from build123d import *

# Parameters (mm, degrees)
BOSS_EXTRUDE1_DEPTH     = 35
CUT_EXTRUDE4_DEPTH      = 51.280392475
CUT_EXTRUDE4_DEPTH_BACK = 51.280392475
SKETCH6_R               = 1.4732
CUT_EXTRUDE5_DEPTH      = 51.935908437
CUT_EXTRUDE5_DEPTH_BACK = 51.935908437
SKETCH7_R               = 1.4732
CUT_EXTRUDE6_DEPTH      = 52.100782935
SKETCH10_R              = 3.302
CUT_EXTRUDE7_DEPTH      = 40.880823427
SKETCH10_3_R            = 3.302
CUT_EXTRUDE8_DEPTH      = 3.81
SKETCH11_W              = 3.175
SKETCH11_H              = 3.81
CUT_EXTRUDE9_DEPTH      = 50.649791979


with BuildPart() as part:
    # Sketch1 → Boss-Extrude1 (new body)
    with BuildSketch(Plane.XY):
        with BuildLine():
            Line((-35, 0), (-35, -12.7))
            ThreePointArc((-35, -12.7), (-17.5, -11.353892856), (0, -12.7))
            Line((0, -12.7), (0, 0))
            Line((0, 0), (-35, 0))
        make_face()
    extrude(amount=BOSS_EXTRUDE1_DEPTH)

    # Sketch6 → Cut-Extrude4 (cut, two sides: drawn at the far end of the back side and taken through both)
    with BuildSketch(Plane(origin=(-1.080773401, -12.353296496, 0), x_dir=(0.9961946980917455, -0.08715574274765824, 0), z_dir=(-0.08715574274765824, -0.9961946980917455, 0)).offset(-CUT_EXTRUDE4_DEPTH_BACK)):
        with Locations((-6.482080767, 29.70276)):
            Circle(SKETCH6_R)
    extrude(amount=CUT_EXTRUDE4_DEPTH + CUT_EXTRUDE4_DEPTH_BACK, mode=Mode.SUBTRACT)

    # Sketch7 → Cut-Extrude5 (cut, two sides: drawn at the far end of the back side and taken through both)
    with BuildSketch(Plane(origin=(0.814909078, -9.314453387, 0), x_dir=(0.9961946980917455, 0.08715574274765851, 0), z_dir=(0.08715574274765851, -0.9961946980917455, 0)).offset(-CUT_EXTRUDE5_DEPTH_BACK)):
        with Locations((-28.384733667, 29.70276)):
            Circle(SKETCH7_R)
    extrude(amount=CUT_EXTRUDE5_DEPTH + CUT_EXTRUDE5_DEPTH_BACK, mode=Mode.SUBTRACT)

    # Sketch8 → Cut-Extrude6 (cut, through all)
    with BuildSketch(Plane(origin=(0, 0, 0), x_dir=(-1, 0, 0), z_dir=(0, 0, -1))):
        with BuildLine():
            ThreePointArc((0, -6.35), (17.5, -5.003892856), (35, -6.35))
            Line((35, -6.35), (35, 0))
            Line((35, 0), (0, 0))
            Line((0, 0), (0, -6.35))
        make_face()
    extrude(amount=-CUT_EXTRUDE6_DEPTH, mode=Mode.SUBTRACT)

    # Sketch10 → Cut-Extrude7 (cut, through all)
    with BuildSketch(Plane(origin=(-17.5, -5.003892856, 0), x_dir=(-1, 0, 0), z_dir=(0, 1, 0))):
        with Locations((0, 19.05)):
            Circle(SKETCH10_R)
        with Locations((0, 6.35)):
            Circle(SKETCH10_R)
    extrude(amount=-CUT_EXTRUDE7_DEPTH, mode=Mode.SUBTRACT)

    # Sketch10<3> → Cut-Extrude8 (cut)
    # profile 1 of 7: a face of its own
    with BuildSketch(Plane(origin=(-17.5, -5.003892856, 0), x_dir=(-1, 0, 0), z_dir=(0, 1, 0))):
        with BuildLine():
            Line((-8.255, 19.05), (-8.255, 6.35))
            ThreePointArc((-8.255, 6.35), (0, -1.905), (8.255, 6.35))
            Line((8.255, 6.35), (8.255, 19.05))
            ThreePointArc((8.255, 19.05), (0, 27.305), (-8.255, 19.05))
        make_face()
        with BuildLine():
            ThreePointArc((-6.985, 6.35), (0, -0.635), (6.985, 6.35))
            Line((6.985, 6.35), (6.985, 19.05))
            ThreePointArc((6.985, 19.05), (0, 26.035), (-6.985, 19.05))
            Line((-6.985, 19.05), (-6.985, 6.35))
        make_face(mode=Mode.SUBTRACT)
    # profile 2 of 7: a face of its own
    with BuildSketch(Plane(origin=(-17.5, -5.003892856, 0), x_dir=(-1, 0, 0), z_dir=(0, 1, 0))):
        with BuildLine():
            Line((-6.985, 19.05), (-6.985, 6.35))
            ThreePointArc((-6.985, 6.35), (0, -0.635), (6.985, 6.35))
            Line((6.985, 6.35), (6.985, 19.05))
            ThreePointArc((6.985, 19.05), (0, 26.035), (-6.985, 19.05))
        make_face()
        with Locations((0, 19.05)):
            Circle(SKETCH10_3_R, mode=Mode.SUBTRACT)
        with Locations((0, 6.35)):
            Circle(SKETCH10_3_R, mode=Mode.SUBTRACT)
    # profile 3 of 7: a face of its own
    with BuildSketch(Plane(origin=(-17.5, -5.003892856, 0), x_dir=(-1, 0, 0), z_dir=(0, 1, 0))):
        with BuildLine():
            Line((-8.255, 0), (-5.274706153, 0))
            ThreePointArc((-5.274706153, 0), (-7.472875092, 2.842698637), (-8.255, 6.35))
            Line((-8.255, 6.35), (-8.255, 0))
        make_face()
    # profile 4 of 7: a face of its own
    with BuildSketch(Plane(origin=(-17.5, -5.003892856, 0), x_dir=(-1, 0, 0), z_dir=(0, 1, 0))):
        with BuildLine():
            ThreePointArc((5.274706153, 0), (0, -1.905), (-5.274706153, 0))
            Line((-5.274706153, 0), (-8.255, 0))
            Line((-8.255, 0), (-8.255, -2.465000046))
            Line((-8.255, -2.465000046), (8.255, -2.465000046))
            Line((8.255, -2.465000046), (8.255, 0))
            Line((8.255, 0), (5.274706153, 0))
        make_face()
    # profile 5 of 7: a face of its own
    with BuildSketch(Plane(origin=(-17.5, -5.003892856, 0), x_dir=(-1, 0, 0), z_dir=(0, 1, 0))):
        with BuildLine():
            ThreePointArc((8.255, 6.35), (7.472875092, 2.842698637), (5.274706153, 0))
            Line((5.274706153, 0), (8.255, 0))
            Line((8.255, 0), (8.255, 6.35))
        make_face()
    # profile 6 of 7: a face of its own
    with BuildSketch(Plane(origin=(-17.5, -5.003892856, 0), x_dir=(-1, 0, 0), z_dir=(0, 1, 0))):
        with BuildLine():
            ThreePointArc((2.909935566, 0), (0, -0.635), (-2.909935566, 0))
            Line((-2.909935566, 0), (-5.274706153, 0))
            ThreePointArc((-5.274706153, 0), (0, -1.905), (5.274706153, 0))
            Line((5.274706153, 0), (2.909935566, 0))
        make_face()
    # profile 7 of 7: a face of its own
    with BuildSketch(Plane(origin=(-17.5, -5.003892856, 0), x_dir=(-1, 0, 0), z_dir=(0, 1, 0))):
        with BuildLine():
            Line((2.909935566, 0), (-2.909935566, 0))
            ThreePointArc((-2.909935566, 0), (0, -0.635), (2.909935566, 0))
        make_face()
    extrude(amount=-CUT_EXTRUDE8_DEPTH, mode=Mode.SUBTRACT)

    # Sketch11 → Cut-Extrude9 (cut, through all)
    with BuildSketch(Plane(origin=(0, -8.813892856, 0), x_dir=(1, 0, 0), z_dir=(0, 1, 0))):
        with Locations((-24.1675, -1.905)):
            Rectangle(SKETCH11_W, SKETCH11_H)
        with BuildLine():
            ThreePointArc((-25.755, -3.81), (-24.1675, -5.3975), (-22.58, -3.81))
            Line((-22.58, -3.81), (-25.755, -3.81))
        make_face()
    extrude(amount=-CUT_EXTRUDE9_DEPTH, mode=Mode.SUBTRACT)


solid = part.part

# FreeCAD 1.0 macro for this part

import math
import FreeCAD as App
import Part
import Sketcher
from FreeCAD import Vector
Q = App.Units.Quantity

doc = App.newDocument("Part")
body = doc.addObject("PartDesign::Body", "Body")

sketch1 = doc.addObject("Sketcher::SketchObject", "Sketch")
body.addObject(sketch1)
sketch1.AttachmentSupport = (doc.XY_Plane, [""])
sketch1.MapMode = "FlatFace"
sketch1.addGeometry([
    Part.LineSegment(Vector(-35, 0, 0), Vector(-35, -13, 0)),
    Part.ArcOfCircle(Part.Circle(Vector(-18, -126, 0), Vector(0, 0, 1), 114), math.radians(81.2), math.radians(98.8)),
    Part.LineSegment(Vector(0, -13, 0), Vector(0, 0, 0)),
    Part.LineSegment(Vector(0, 0, 0), Vector(-35, 0, 0)),
], False)
sketch1.addConstraint([
    Sketcher.Constraint("Coincident", 0, 2, 1, 2),
    Sketcher.Constraint("Coincident", 1, 1, 2, 1),
    Sketcher.Constraint("Coincident", 2, 2, 3, 1),
    Sketcher.Constraint("Coincident", 3, 2, 0, 1),
    Sketcher.Constraint("Vertical", 0),
    Sketcher.Constraint("Vertical", 2),
    Sketcher.Constraint("Horizontal", 3),
    Sketcher.Constraint("Coincident", 2, 2, -1, 1),
    Sketcher.Constraint("Horizontal", 0, 2, 1, 1),
    Sketcher.Constraint("DistanceY", 0, 2, 0, 1, Q("0.5 in")),
    Sketcher.Constraint("Radius", 1, Q("4.505 in")),
    Sketcher.Constraint("DistanceX", 3, 2, 3, 1, 35.0),
])
pad1 = doc.addObject("PartDesign::Pad", "Pad")
body.addObject(pad1)
pad1.Profile = sketch1
pad1.Length = 35

sketch2 = doc.addObject("Sketcher::SketchObject", "Sketch001")
body.addObject(sketch2)
sketch2.Placement = App.Placement(Vector(-1.080773, -12.353296, 0), App.Rotation(Vector(0.996194698, -0.087155743, 0), Vector(0, 0, 1), Vector(-0.087155743, -0.996194698, 0), "ZXY"))
sketch2.addGeometry(Part.Circle(Vector(-6.5, 29.7, 0), Vector(0, 0, 1), 1.5), False)
sketch2.addConstraint([
    Sketcher.Constraint("Diameter", 0, Q("0.116 in")),
    Sketcher.Constraint("DistanceX", 0, 3, -1, 1, Q("0.2552 in")),
    Sketcher.Constraint("DistanceY", -1, 1, 0, 3, Q("1.1694 in")),
])
pocket1 = doc.addObject("PartDesign::Pocket", "Pocket")
body.addObject(pocket1)
pocket1.Profile = sketch2
pocket1.Type = "ThroughAll"
pocket1.Midplane = True

sketch3 = doc.addObject("Sketcher::SketchObject", "Sketch002")
body.addObject(sketch3)
sketch3.Placement = App.Placement(Vector(0.814909, -9.314453, 0), App.Rotation(Vector(0.996194698, 0.087155743, 0), Vector(0, 0, 1), Vector(0.087155743, -0.996194698, 0), "ZXY"))
sketch3.addGeometry(Part.Circle(Vector(-28.4, 29.7, 0), Vector(0, 0, 1), 1.5), False)
sketch3.addConstraint([
    Sketcher.Constraint("Diameter", 0, Q("0.116 in")),
    Sketcher.Constraint("DistanceY", -1, 1, 0, 3, Q("1.1694 in")),
    Sketcher.Constraint("DistanceX", 0, 3, -1, 1, 28.384734),
])
pocket2 = doc.addObject("PartDesign::Pocket", "Pocket001")
body.addObject(pocket2)
pocket2.Profile = sketch3
pocket2.Type = "ThroughAll"
pocket2.Midplane = True

sketch4 = doc.addObject("Sketcher::SketchObject", "Sketch003")
body.addObject(sketch4)
sketch4.AttachmentSupport = (doc.XY_Plane, [""])
sketch4.MapMode = "FlatFace"
sketch4.addGeometry([
    Part.ArcOfCircle(Part.Circle(Vector(-18, -119, 0), Vector(0, 0, 1), 114), math.radians(81.2), math.radians(98.8)),
    Part.LineSegment(Vector(-35, -6, 0), Vector(-35, 0, 0)),
    Part.LineSegment(Vector(-35, 0, 0), Vector(0, 0, 0)),
    Part.LineSegment(Vector(0, 0, 0), Vector(0, -6, 0)),
], False)
sketch4.addConstraint([
    Sketcher.Constraint("Coincident", 0, 2, 1, 1),
    Sketcher.Constraint("Coincident", 1, 2, 2, 1),
    Sketcher.Constraint("Coincident", 2, 2, 3, 1),
    Sketcher.Constraint("Coincident", 3, 2, 0, 1),
    Sketcher.Constraint("Vertical", 1),
    Sketcher.Constraint("Horizontal", 2),
    Sketcher.Constraint("Vertical", 3),
    Sketcher.Constraint("Coincident", 2, 2, -1, 1),
    Sketcher.Constraint("Horizontal", 0, 2, 3, 2),
    Sketcher.Constraint("Radius", 0, Q("4.505 in")),
    Sketcher.Constraint("DistanceY", 1, 1, 1, 2, Q("0.25 in")),
    Sketcher.Constraint("DistanceX", 2, 1, 2, 2, 35.0),
])
pocket3 = doc.addObject("PartDesign::Pocket", "Pocket002")
body.addObject(pocket3)
pocket3.Profile = sketch4
pocket3.Type = "ThroughAll"
pocket3.Reversed = True

sketch5 = doc.addObject("Sketcher::SketchObject", "Sketch004")
body.addObject(sketch5)
sketch5.AttachmentSupport = (doc.XZ_Plane, [""])
sketch5.MapMode = "FlatFace"
sketch5.AttachmentOffset = App.Placement(Vector(0, 0, 5.003893), App.Rotation())
sketch5.addGeometry([
    Part.Circle(Vector(-17.5, 19.1, 0), Vector(0, 0, 1), 3.3),
    Part.Circle(Vector(-17.5, 6.3, 0), Vector(0, 0, 1), 3.3),
], False)
sketch5.addConstraint([
    Sketcher.Constraint("Equal", 0, 1),
    Sketcher.Constraint("Vertical", 0, 3, 1, 3),
    Sketcher.Constraint("Diameter", 0, Q("0.26 in")),
    Sketcher.Constraint("DistanceY", 1, 3, 0, 3, Q("0.5 in")),
    Sketcher.Constraint("DistanceY", -1, 1, 0, 3, Q("0.75 in")),
    Sketcher.Constraint("DistanceX", 0, 3, -1, 1, 17.5),
])
pocket4 = doc.addObject("PartDesign::Pocket", "Pocket003")
body.addObject(pocket4)
pocket4.Profile = sketch5
pocket4.Type = "ThroughAll"
pocket4.Reversed = True

sketch6 = doc.addObject("Sketcher::SketchObject", "Sketch005")
body.addObject(sketch6)
sketch6.AttachmentSupport = (doc.XZ_Plane, [""])
sketch6.MapMode = "FlatFace"
sketch6.AttachmentOffset = App.Placement(Vector(0, 0, 5.003893), App.Rotation())
sketch6.addGeometry([
    Part.ArcOfCircle(Part.Circle(Vector(-17.5, 19.1, 0), Vector(0, 0, 1), 8.3), math.radians(0), math.radians(180)),
    Part.LineSegment(Vector(-9.2, 19.1, 0), Vector(-9.2, -2.5, 0)),
    Part.LineSegment(Vector(-9.2, -2.5, 0), Vector(-25.8, -2.5, 0)),
    Part.LineSegment(Vector(-25.8, -2.5, 0), Vector(-25.8, 19.1, 0)),
    Part.Circle(Vector(-17.5, 6.3, 0), Vector(0, 0, 1), 3.3),
    Part.Circle(Vector(-17.5, 19.1, 0), Vector(0, 0, 1), 3.3),
], False)
sketch6.addConstraint([
    Sketcher.Constraint("Tangent", 0, 1, 1, 1),
    Sketcher.Constraint("Coincident", 1, 2, 2, 1),
    Sketcher.Constraint("Coincident", 2, 2, 3, 1),
    Sketcher.Constraint("Tangent", 3, 2, 0, 2),
    Sketcher.Constraint("Vertical", 1),
    Sketcher.Constraint("Horizontal", 2),
    Sketcher.Constraint("Vertical", 3),
    Sketcher.Constraint("Coincident", 5, 3, 0, 3),
    Sketcher.Constraint("Equal", 4, 5),
    Sketcher.Constraint("Vertical", 0, 3, 4, 3),
    Sketcher.Constraint("Diameter", 4, Q("0.26 in")),
    Sketcher.Constraint("Radius", 0, Q("0.325 in")),
    Sketcher.Constraint("DistanceY", 4, 3, 0, 3, Q("0.5 in")),
    Sketcher.Constraint("DistanceY", -1, 1, 0, 3, Q("0.75 in")),
    Sketcher.Constraint("DistanceY", 1, 2, 1, 1, 21.515),
    Sketcher.Constraint("DistanceX", 0, 3, -1, 1, 17.5),
])
pocket5 = doc.addObject("PartDesign::Pocket", "Pocket004")
body.addObject(pocket5)
pocket5.Profile = sketch6
pocket5.Length = Q("0.15 in")
pocket5.Reversed = True

sketch7 = doc.addObject("Sketcher::SketchObject", "Sketch006")
body.addObject(sketch7)
sketch7.AttachmentSupport = (doc.XZ_Plane, [""])
sketch7.MapMode = "FlatFace"
sketch7.AttachmentOffset = App.Placement(Vector(0, 0, 8.813893), App.Rotation())
sketch7.addGeometry([
    Part.LineSegment(Vector(-25.8, 0, 0), Vector(-25.8, 3.8, 0)),
    Part.ArcOfCircle(Part.Circle(Vector(-24.2, 3.8, 0), Vector(0, 0, 1), 1.6), math.radians(0), math.radians(180)),
    Part.LineSegment(Vector(-22.6, 3.8, 0), Vector(-22.6, 0, 0)),
    Part.LineSegment(Vector(-22.6, 0, 0), Vector(-25.8, 0, 0)),
], False)
sketch7.addConstraint([
    Sketcher.Constraint("Tangent", 0, 2, 1, 2),
    Sketcher.Constraint("Tangent", 1, 1, 2, 1),
    Sketcher.Constraint("Coincident", 2, 2, 3, 1),
    Sketcher.Constraint("Coincident", 3, 2, 0, 1),
    Sketcher.Constraint("Vertical", 0),
    Sketcher.Constraint("Vertical", 2),
    Sketcher.Constraint("Horizontal", 3),
    Sketcher.Constraint("PointOnObject", 2, 2, -1),
    Sketcher.Constraint("Radius", 1, Q("0.0625 in")),
    Sketcher.Constraint("DistanceY", 0, 1, 0, 2, Q("0.15 in")),
    Sketcher.Constraint("DistanceX", 1, 3, -1, 1, 24.1675),
])
pocket6 = doc.addObject("PartDesign::Pocket", "Pocket005")
body.addObject(pocket6)
pocket6.Profile = sketch7
pocket6.Type = "ThroughAll"
pocket6.Reversed = True

doc.recompute()
